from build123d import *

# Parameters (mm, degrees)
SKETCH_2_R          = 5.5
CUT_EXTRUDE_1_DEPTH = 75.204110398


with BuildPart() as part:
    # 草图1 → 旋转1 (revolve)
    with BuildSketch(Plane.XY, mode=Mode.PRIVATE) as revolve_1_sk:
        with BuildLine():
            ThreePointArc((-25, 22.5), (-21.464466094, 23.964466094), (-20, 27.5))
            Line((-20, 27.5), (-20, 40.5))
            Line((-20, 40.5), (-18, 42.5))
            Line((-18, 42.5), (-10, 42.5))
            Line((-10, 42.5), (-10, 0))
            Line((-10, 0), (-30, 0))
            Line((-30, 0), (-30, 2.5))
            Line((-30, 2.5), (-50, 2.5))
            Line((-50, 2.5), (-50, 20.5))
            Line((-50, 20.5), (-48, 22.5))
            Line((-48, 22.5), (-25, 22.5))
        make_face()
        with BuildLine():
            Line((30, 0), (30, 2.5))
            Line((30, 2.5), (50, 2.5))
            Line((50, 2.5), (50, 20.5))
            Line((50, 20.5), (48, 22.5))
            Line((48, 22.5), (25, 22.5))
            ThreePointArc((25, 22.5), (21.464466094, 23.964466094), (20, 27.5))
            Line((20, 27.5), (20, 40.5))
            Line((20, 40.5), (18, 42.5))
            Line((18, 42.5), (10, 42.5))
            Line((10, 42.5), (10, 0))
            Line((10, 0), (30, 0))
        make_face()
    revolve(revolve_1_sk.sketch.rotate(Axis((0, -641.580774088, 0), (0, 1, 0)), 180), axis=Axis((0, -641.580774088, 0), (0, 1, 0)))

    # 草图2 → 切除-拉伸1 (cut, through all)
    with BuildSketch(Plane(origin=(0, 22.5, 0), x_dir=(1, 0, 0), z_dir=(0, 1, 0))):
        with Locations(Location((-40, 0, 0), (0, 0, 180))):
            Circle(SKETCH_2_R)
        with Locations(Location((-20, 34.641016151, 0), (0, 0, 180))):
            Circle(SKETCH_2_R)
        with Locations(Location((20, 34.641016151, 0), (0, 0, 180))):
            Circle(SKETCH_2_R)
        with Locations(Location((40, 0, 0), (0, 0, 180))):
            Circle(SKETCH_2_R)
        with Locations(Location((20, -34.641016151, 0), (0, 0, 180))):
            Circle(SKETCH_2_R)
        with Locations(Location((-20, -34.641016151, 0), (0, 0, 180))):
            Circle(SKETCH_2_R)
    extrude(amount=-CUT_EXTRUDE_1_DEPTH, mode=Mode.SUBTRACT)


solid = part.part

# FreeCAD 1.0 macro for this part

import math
import FreeCAD as App
import Part
import Sketcher
from FreeCAD import Vector
Q = App.Units.Quantity

doc = App.newDocument("Part")
params = doc.addObject("Spreadsheet::Sheet", "Params")
for row, (alias, value) in enumerate([
    ("sketch1_radius", "5 mm"),
    ("sketch1_width", "23 mm"),
    ("sketch1_width2", "20 mm"),
    ("sketch1_width3", "8 mm"),
    ("sketch1_height", "18 mm"),
    ("revolution_angle", "360 deg"),
    ("sketch2_diameter", "11 mm"),
], start=1):
    params.set(f"A{row}", alias)
    params.set(f"B{row}", "=" + value)
    params.setAlias(f"B{row}", alias)

body = doc.addObject("PartDesign::Body", "Body")

# Sketch on XY plane
sketch1 = body.newObject("Sketcher::SketchObject", "Sketch")
sketch1.AttachmentSupport = (doc.getObject("XY_Plane"), [""])
sketch1.MapMode = "FlatFace"
sketch1.addGeometry(Part.ArcOfCircle(Part.Circle(Vector(-25, 27.5, 0), Vector(0, 0, 1), 5), math.radians(-90), math.radians(0)), False)
sketch1.addGeometry(Part.LineSegment(Vector(-25, 22.5, 0), Vector(-48, 22.5, 0)), False)
sketch1.addGeometry(Part.LineSegment(Vector(-48, 22.5, 0), Vector(-50, 20.5, 0)), False)
sketch1.addGeometry(Part.LineSegment(Vector(-50, 20.5, 0), Vector(-50, 2.5, 0)), False)
sketch1.addGeometry(Part.LineSegment(Vector(-50, 2.5, 0), Vector(-30, 2.5, 0)), False)
sketch1.addGeometry(Part.LineSegment(Vector(-30, 2.5, 0), Vector(-30, 0, 0)), False)
sketch1.addGeometry(Part.LineSegment(Vector(-30, 0, 0), Vector(-10, 0, 0)), False)
sketch1.addGeometry(Part.LineSegment(Vector(-10, 0, 0), Vector(-10, 42.5, 0)), False)
sketch1.addGeometry(Part.LineSegment(Vector(-10, 42.5, 0), Vector(-18, 42.5, 0)), False)
sketch1.addGeometry(Part.LineSegment(Vector(-18, 42.5, 0), Vector(-20, 40.5, 0)), False)
sketch1.addGeometry(Part.LineSegment(Vector(-20, 40.5, 0), Vector(-20, 27.5, 0)), False)
sketch1.addGeometry(Part.LineSegment(Vector(30, 0, 0), Vector(30, 2.5, 0)), False)
sketch1.addGeometry(Part.LineSegment(Vector(30, 2.5, 0), Vector(50, 2.5, 0)), False)
sketch1.addGeometry(Part.LineSegment(Vector(50, 2.5, 0), Vector(50, 20.5, 0)), False)
sketch1.addGeometry(Part.LineSegment(Vector(50, 20.5, 0), Vector(48, 22.5, 0)), False)
sketch1.addGeometry(Part.LineSegment(Vector(48, 22.5, 0), Vector(25, 22.5, 0)), False)
sketch1.addGeometry(Part.ArcOfCircle(Part.Circle(Vector(25, 27.5, 0), Vector(0, 0, 1), 5), math.radians(180), math.radians(270)), False)
sketch1.addGeometry(Part.LineSegment(Vector(20, 27.5, 0), Vector(20, 40.5, 0)), False)
sketch1.addGeometry(Part.LineSegment(Vector(20, 40.5, 0), Vector(18, 42.5, 0)), False)
sketch1.addGeometry(Part.LineSegment(Vector(18, 42.5, 0), Vector(10, 42.5, 0)), False)
sketch1.addGeometry(Part.LineSegment(Vector(10, 42.5, 0), Vector(10, 0, 0)), False)
sketch1.addGeometry(Part.LineSegment(Vector(10, 0, 0), Vector(30, 0, 0)), False)
sketch1.addConstraint(Sketcher.Constraint("Tangent", 0, 1, 1, 1))
sketch1.addConstraint(Sketcher.Constraint("Coincident", 1, 2, 2, 1))
sketch1.addConstraint(Sketcher.Constraint("Coincident", 2, 2, 3, 1))
sketch1.addConstraint(Sketcher.Constraint("Coincident", 3, 2, 4, 1))
sketch1.addConstraint(Sketcher.Constraint("Coincident", 4, 2, 5, 1))
sketch1.addConstraint(Sketcher.Constraint("Coincident", 5, 2, 6, 1))
sketch1.addConstraint(Sketcher.Constraint("Coincident", 6, 2, 7, 1))
sketch1.addConstraint(Sketcher.Constraint("Coincident", 7, 2, 8, 1))
sketch1.addConstraint(Sketcher.Constraint("Coincident", 8, 2, 9, 1))
sketch1.addConstraint(Sketcher.Constraint("Coincident", 9, 2, 10, 1))
sketch1.addConstraint(Sketcher.Constraint("Tangent", 10, 2, 0, 2))
sketch1.addConstraint(Sketcher.Constraint("Coincident", 11, 2, 12, 1))
sketch1.addConstraint(Sketcher.Constraint("Coincident", 12, 2, 13, 1))
sketch1.addConstraint(Sketcher.Constraint("Coincident", 13, 2, 14, 1))
sketch1.addConstraint(Sketcher.Constraint("Coincident", 14, 2, 15, 1))
sketch1.addConstraint(Sketcher.Constraint("Tangent", 15, 2, 16, 2))
sketch1.addConstraint(Sketcher.Constraint("Tangent", 16, 1, 17, 1))
sketch1.addConstraint(Sketcher.Constraint("Coincident", 17, 2, 18, 1))
sketch1.addConstraint(Sketcher.Constraint("Coincident", 18, 2, 19, 1))
sketch1.addConstraint(Sketcher.Constraint("Coincident", 19, 2, 20, 1))
sketch1.addConstraint(Sketcher.Constraint("Coincident", 20, 2, 21, 1))
sketch1.addConstraint(Sketcher.Constraint("Coincident", 21, 2, 11, 1))
sketch1.addConstraint(Sketcher.Constraint("Horizontal", 1))
sketch1.addConstraint(Sketcher.Constraint("Vertical", 3))
sketch1.addConstraint(Sketcher.Constraint("Horizontal", 4))
sketch1.addConstraint(Sketcher.Constraint("Vertical", 5))
sketch1.addConstraint(Sketcher.Constraint("Horizontal", 6))
sketch1.addConstraint(Sketcher.Constraint("Vertical", 7))
sketch1.addConstraint(Sketcher.Constraint("Horizontal", 8))
sketch1.addConstraint(Sketcher.Constraint("Vertical", 10))
sketch1.addConstraint(Sketcher.Constraint("Vertical", 11))
sketch1.addConstraint(Sketcher.Constraint("Horizontal", 12))
sketch1.addConstraint(Sketcher.Constraint("Vertical", 13))
sketch1.addConstraint(Sketcher.Constraint("Horizontal", 15))
sketch1.addConstraint(Sketcher.Constraint("Vertical", 17))
sketch1.addConstraint(Sketcher.Constraint("Horizontal", 19))
sketch1.addConstraint(Sketcher.Constraint("Vertical", 20))
sketch1.addConstraint(Sketcher.Constraint("Horizontal", 21))
sketch1.addConstraint(Sketcher.Constraint("Equal", 0, 16))
sketch1.addConstraint(Sketcher.Constraint("Symmetric", 6, 2, 20, 2, -1, 1))
sketch1.addConstraint(Sketcher.Constraint("Symmetric", 0, 3, 16, 3, -2))
sketch1.addConstraint(Sketcher.Constraint("Symmetric", 4, 2, 11, 2, -2))
sketch1.addConstraint(Sketcher.Constraint("Symmetric", 2, 2, 13, 2, -2))
sketch1.addConstraint(Sketcher.Constraint("Symmetric", 8, 2, 18, 2, -2))
sketch1.addConstraint(Sketcher.Constraint("PointOnObject", 5, 2, -1))
sketch1.addConstraint(Sketcher.Constraint("Parallel", 2, 9))
sketch1.addConstraint(Sketcher.Constraint("Perpendicular", 9, 14))
sketch1.addConstraint(Sketcher.Constraint("Parallel", 14, 18))
sketch1.addConstraint(Sketcher.Constraint("Horizontal", 9, 2, 17, 2))
sketch1.addConstraint(Sketcher.Constraint("Equal", 4, 6))
sketch1.addConstraint(Sketcher.Constraint("Equal", 2, 9))
sketch1.addConstraint(Sketcher.Constraint("Radius", 0, Q("5 mm")))
sketch1.addConstraint(Sketcher.Constraint("DistanceX", 1, 2, 1, 1, Q("23 mm")))
sketch1.addConstraint(Sketcher.Constraint("DistanceX", 4, 1, 4, 2, Q("20 mm")))
sketch1.addConstraint(Sketcher.Constraint("DistanceX", 8, 2, 8, 1, Q("8 mm")))
sketch1.addConstraint(Sketcher.Constraint("DistanceY", 3, 2, 3, 1, Q("18 mm")))
sketch1.addConstraint(Sketcher.Constraint("DistanceY", 10, 2, 10, 1, Q("13 mm")))
sketch1.addConstraint(Sketcher.Constraint("DistanceY", 5, 2, 5, 1, Q("2.5 mm")))
sketch1.addConstraint(Sketcher.Constraint("DistanceX", 0, 3, -1, 1, Q("25 mm")))
sketch1.setExpression("Constraints[51]", "Params.sketch1_radius")
sketch1.setExpression("Constraints[52]", "Params.sketch1_width")
sketch1.setExpression("Constraints[53]", "Params.sketch1_width2")
sketch1.setExpression("Constraints[54]", "Params.sketch1_width3")
sketch1.setExpression("Constraints[55]", "Params.sketch1_height")
revolution = body.newObject("PartDesign::Revolution", "Revolution")
revolution.Profile = sketch1
revolution.ReferenceAxis = (sketch1, ["V_Axis"])
revolution.setExpression("Angle", "Params.revolution_angle")

# Sketch on XZ plane
sketch2 = body.newObject("Sketcher::SketchObject", "Sketch001")
sketch2.AttachmentSupport = (doc.getObject("XZ_Plane"), [""])
sketch2.MapMode = "FlatFace"
sketch2.AttachmentOffset = App.Placement(Vector(0, 0, -22.5), App.Rotation())
sketch2.addGeometry(Part.Circle(Vector(-40, 0, 0), Vector(0, 0, 1), 6), False)
sketch2.addGeometry(Part.Circle(Vector(-20, -35, 0), Vector(0, 0, 1), 6), False)
sketch2.addGeometry(Part.Circle(Vector(20, -35, 0), Vector(0, 0, 1), 6), False)
sketch2.addGeometry(Part.Circle(Vector(40, 0, 0), Vector(0, 0, 1), 6), False)
sketch2.addGeometry(Part.Circle(Vector(20, 35, 0), Vector(0, 0, 1), 6), False)
sketch2.addGeometry(Part.Circle(Vector(-20, 35, 0), Vector(0, 0, 1), 6), False)
sketch2.addConstraint(Sketcher.Constraint("Equal", 0, 1))
sketch2.addConstraint(Sketcher.Constraint("Equal", 1, 2))
sketch2.addConstraint(Sketcher.Constraint("Equal", 2, 3))
sketch2.addConstraint(Sketcher.Constraint("Equal", 3, 4))
sketch2.addConstraint(Sketcher.Constraint("Equal", 4, 5))
sketch2.addConstraint(Sketcher.Constraint("Symmetric", 0, 3, 3, 3, -1, 1))
sketch2.addConstraint(Sketcher.Constraint("Symmetric", 1, 3, 4, 3, -1, 1))
sketch2.addConstraint(Sketcher.Constraint("Symmetric", 2, 3, 5, 3, -1, 1))
sketch2.addConstraint(Sketcher.Constraint("Symmetric", 1, 3, 2, 3, -2))
sketch2.addConstraint(Sketcher.Constraint("PointOnObject", 0, 3, -1))
sketch2.addConstraint(Sketcher.Constraint("Diameter", 0, Q("11 mm")))
sketch2.addConstraint(Sketcher.Constraint("DistanceX", 0, 3, -1, 1, Q("40 mm")))
sketch2.addConstraint(Sketcher.Constraint("DistanceX", 1, 3, -1, 1, Q("20 mm")))
sketch2.addConstraint(Sketcher.Constraint("DistanceY", 1, 3, -1, 1, Q("34.641016 mm")))
sketch2.setExpression("Constraints[10]", "Params.sketch2_diameter")
pocket1 = body.newObject("PartDesign::Pocket", "Pocket")
pocket1.Profile = sketch2
pocket1.Type = "ThroughAll"
pocket1.Reversed = True

doc.recompute()
